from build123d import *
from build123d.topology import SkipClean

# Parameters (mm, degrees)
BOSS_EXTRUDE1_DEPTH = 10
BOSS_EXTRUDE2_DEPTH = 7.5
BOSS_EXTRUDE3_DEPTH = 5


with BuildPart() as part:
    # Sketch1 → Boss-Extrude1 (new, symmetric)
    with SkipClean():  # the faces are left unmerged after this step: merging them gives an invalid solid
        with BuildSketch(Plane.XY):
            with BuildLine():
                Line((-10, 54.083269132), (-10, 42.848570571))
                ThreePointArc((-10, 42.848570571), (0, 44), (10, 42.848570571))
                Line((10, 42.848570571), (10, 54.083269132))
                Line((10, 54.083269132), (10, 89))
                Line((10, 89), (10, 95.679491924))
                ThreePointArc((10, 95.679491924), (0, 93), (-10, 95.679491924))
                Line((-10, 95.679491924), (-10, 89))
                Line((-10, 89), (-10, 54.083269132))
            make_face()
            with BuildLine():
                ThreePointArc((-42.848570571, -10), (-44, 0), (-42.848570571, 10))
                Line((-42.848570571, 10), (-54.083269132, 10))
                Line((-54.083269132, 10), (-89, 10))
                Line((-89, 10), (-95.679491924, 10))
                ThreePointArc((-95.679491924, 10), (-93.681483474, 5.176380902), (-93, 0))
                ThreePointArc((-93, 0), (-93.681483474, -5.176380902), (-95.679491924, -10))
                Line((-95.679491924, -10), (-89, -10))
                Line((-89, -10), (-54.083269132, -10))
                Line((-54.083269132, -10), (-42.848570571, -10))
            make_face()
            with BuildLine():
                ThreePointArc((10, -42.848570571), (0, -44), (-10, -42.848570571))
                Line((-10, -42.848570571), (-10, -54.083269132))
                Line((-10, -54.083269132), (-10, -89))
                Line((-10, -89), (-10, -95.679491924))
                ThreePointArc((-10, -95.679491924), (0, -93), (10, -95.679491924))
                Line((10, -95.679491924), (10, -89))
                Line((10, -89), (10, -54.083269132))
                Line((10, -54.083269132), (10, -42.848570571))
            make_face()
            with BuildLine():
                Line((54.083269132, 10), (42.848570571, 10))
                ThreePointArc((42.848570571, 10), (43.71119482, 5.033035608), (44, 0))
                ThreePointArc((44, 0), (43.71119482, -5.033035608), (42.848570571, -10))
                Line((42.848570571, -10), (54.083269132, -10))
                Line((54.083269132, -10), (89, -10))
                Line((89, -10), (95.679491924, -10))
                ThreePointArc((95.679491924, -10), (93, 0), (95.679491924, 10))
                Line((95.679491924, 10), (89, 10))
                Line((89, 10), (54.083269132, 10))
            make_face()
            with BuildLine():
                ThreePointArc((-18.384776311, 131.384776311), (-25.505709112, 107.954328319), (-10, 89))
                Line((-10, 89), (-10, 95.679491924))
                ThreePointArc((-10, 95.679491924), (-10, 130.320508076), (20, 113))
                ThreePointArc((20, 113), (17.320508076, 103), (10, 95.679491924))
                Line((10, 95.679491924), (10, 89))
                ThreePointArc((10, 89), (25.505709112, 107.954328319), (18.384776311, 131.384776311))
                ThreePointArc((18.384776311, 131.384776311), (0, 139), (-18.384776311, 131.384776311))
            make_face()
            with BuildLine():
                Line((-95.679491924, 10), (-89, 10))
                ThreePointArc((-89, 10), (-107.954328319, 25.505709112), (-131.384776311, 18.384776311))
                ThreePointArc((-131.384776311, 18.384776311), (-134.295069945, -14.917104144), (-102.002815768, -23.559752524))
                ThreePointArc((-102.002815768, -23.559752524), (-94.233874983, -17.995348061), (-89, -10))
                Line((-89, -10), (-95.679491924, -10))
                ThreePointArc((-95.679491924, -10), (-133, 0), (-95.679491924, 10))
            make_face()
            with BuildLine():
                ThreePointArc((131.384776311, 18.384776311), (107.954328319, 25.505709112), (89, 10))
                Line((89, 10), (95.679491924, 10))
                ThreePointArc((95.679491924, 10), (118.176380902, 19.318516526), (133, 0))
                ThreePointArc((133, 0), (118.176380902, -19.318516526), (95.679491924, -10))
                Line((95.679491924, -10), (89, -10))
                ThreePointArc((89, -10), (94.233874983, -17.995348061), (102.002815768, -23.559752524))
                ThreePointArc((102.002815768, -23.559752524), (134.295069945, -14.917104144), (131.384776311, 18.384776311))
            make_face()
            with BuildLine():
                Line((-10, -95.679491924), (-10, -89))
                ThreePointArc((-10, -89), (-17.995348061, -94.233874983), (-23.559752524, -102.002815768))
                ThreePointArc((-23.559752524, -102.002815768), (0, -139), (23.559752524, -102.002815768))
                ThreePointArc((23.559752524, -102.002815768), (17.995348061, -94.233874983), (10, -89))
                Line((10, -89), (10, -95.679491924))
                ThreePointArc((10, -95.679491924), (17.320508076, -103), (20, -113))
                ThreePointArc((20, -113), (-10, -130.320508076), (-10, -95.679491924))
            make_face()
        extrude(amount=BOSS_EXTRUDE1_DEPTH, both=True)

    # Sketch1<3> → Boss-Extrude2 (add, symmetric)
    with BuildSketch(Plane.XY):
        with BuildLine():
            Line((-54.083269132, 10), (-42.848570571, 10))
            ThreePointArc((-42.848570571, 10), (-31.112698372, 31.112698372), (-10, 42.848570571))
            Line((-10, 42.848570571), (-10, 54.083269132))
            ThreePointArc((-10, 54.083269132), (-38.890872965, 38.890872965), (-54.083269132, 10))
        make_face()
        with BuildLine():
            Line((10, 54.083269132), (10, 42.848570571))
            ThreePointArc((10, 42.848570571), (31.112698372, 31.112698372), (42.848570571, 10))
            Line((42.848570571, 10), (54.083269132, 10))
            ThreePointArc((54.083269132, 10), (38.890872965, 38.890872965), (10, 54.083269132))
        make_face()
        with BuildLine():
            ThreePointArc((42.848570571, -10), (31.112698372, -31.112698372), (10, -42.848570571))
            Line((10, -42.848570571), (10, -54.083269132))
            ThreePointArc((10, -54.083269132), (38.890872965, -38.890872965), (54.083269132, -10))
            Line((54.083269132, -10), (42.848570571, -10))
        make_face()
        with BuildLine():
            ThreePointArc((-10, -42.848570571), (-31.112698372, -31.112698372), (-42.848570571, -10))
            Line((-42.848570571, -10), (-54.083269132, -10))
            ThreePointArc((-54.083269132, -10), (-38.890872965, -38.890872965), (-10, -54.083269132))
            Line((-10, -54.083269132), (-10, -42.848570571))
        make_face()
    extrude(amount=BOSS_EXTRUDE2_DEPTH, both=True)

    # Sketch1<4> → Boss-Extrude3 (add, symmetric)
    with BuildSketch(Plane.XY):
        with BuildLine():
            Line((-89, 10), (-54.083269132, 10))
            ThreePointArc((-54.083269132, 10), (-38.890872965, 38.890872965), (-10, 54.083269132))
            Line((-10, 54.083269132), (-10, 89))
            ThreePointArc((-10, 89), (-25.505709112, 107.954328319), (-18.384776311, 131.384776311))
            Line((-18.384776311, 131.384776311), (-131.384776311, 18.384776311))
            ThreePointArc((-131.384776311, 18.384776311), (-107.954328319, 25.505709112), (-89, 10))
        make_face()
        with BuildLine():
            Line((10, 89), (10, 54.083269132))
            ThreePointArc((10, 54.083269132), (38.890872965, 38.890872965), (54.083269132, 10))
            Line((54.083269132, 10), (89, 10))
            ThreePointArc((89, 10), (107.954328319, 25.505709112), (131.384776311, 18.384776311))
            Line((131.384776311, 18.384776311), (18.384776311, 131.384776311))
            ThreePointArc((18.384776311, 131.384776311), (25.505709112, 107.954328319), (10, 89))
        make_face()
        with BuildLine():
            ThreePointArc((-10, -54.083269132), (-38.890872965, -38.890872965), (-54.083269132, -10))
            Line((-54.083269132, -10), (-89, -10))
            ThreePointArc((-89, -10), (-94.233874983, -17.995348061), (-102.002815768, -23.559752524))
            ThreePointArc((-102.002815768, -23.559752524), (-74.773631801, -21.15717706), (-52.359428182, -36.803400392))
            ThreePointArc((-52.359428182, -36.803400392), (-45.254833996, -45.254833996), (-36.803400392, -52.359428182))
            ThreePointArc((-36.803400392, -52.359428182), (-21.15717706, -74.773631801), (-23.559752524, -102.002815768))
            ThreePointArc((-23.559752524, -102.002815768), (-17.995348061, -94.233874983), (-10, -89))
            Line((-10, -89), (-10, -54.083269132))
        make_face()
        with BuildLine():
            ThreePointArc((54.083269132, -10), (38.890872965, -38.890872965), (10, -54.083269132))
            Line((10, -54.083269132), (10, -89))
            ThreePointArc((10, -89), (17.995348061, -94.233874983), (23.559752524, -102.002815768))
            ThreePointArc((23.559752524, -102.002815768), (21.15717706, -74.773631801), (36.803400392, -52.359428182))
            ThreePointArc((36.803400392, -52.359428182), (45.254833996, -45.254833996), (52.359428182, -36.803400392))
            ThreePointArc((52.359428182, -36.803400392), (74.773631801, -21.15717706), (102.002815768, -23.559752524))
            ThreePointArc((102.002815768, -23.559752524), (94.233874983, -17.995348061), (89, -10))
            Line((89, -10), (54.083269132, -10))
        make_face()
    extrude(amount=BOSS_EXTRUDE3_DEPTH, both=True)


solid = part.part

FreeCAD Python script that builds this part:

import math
import FreeCAD as App
import Part
import Sketcher

doc = App.newDocument("Part")
params = doc.addObject("Spreadsheet::Sheet", "Params")
for row, (alias, value) in enumerate([
    ("sketch1_radius", "44 mm"),
    ("sketch1_radius2", "20 mm"),
    ("sketch1_radius3", "26 mm"),
    ("pad1_length", "20 mm"),
    ("sketch2_radius", "44 mm"),
    ("sketch2_radius2", "55 mm"),
    ("pad2_length", "15 mm"),
    ("sketch3_radius", "55 mm"),
    ("sketch3_radius2", "26 mm"),
    ("sketch3_radius3", "40 mm"),
    ("sketch3_radius4", "64 mm"),
    ("pad3_length", "10 mm"),
], start=1):
    params.set(f"A{row}", alias)
    params.set(f"B{row}", "=" + value)
    params.setAlias(f"B{row}", alias)

body = doc.addObject("PartDesign::Body", "Body")
body.AllowCompound = True

# Sketch on XY plane
sketch1 = body.newObject("Sketcher::SketchObject", "Sketch")
sketch1.AttachmentSupport = (doc.getObject("XY_Plane"), [""])
sketch1.MapMode = "FlatFace"
sketch1.addGeometry([
    Part.ArcOfCircle(Part.Circle(App.Vector(0, 0, 0), App.Vector(0, 0, 1), 44), math.radians(77), math.radians(103)),  # 0
    Part.LineSegment(App.Vector(10, 43, 0), App.Vector(10, 89, 0)),  # 1
    Part.LineSegment(App.Vector(10, 89, 0), App.Vector(10, 96, 0)),  # 2
    Part.ArcOfCircle(Part.Circle(App.Vector(0, 113, 0), App.Vector(0, 0, 1), 20), math.radians(-120), math.radians(-60)),  # 3
    Part.LineSegment(App.Vector(-10, 96, 0), App.Vector(-10, 89, 0)),  # 4
    Part.LineSegment(App.Vector(-10, 89, 0), App.Vector(-10, 43, 0)),  # 5
    Part.ArcOfCircle(Part.Circle(App.Vector(0, 0, 0), App.Vector(0, 0, 1), 44), math.radians(167), math.radians(193)),  # 6
    Part.LineSegment(App.Vector(-43, 10, 0), App.Vector(-54, 10, 0)),  # 7
    Part.LineSegment(App.Vector(-54, 10, 0), App.Vector(-89, 10, 0)),  # 8
    Part.LineSegment(App.Vector(-89, 10, 0), App.Vector(-96, 10, 0)),  # 9
    Part.ArcOfCircle(Part.Circle(App.Vector(-113, 0, 0), App.Vector(0, 0, 1), 20), math.radians(0), math.radians(30)),  # 10
    Part.ArcOfCircle(Part.Circle(App.Vector(-113, 0, 0), App.Vector(0, 0, 1), 20), math.radians(-30), math.radians(0)),  # 11
    Part.LineSegment(App.Vector(-96, -10, 0), App.Vector(-89, -10, 0)),  # 12
    Part.LineSegment(App.Vector(-89, -10, 0), App.Vector(-54, -10, 0)),  # 13
    Part.LineSegment(App.Vector(-54, -10, 0), App.Vector(-43, -10, 0)),  # 14
    Part.ArcOfCircle(Part.Circle(App.Vector(0, 0, 0), App.Vector(0, 0, 1), 44), math.radians(-103), math.radians(-77)),  # 15
    Part.LineSegment(App.Vector(-10, -43, 0), App.Vector(-10, -54, 0)),  # 16
    Part.LineSegment(App.Vector(-10, -54, 0), App.Vector(-10, -89, 0)),  # 17
    Part.LineSegment(App.Vector(-10, -89, 0), App.Vector(-10, -96, 0)),  # 18
    Part.ArcOfCircle(Part.Circle(App.Vector(0, -113, 0), App.Vector(0, 0, 1), 20), math.radians(60), math.radians(120)),  # 19
    Part.LineSegment(App.Vector(10, -96, 0), App.Vector(10, -89, 0)),  # 20
    Part.LineSegment(App.Vector(10, -89, 0), App.Vector(10, -54, 0)),  # 21
    Part.LineSegment(App.Vector(10, -54, 0), App.Vector(10, -43, 0)),  # 22
    Part.LineSegment(App.Vector(54, 10, 0), App.Vector(43, 10, 0)),  # 23
    Part.ArcOfCircle(Part.Circle(App.Vector(0, 0, 0), App.Vector(0, 0, 1), 44), math.radians(0), math.radians(13.14)),  # 24
    Part.ArcOfCircle(Part.Circle(App.Vector(0, 0, 0), App.Vector(0, 0, 1), 44), math.radians(-13.14), math.radians(0)),  # 25
    Part.LineSegment(App.Vector(43, -10, 0), App.Vector(54, -10, 0)),  # 26
    Part.LineSegment(App.Vector(54, -10, 0), App.Vector(89, -10, 0)),  # 27
    Part.LineSegment(App.Vector(89, -10, 0), App.Vector(96, -10, 0)),  # 28
    Part.ArcOfCircle(Part.Circle(App.Vector(113, 0, 0), App.Vector(0, 0, 1), 20), math.radians(150), math.radians(210)),  # 29
    Part.LineSegment(App.Vector(96, 10, 0), App.Vector(89, 10, 0)),  # 30
    Part.LineSegment(App.Vector(89, 10, 0), App.Vector(54, 10, 0)),  # 31
    Part.ArcOfCircle(Part.Circle(App.Vector(0, 113, 0), App.Vector(0, 0, 1), 26), math.radians(135), math.radians(247)),  # 32
    Part.LineSegment(App.Vector(-10, 89, 0), App.Vector(-10, 96, 0)),  # 33
    Part.ArcOfCircle(Part.Circle(App.Vector(0, 113, 0), App.Vector(0, 0, 1), 20), math.radians(0), math.radians(240)),  # 34
    Part.ArcOfCircle(Part.Circle(App.Vector(0, 113, 0), App.Vector(0, 0, 1), 20), math.radians(-60), math.radians(0)),  # 35
    Part.LineSegment(App.Vector(10, 96, 0), App.Vector(10, 89, 0)),  # 36
    Part.ArcOfCircle(Part.Circle(App.Vector(0, 113, 0), App.Vector(0, 0, 1), 26), math.radians(-67), math.radians(45)),  # 37
    Part.ArcOfCircle(Part.Circle(App.Vector(0, 113, 0), App.Vector(0, 0, 1), 26), math.radians(45), math.radians(135)),  # 38
    Part.LineSegment(App.Vector(-96, 10, 0), App.Vector(-89, 10, 0)),  # 39
    Part.ArcOfCircle(Part.Circle(App.Vector(-113, 0, 0), App.Vector(0, 0, 1), 26), math.radians(23), math.radians(135)),  # 40
    Part.ArcOfCircle(Part.Circle(App.Vector(-113, 0, 0), App.Vector(0, 0, 1), 26), math.radians(135), math.radians(295)),  # 41
    Part.ArcOfCircle(Part.Circle(App.Vector(-113, 0, 0), App.Vector(0, 0, 1), 26), math.radians(-65), math.radians(-23)),  # 42
    Part.LineSegment(App.Vector(-89, -10, 0), App.Vector(-96, -10, 0)),  # 43
    Part.ArcOfCircle(Part.Circle(App.Vector(-113, 0, 0), App.Vector(0, 0, 1), 20), math.radians(30), math.radians(330)),  # 44
    Part.ArcOfCircle(Part.Circle(App.Vector(113, 0, 0), App.Vector(0, 0, 1), 26), math.radians(45), math.radians(157)),  # 45
    Part.LineSegment(App.Vector(89, 10, 0), App.Vector(96, 10, 0)),  # 46
    Part.ArcOfCircle(Part.Circle(App.Vector(113, 0, 0), App.Vector(0, 0, 1), 20), math.radians(0), math.radians(150)),  # 47
    Part.ArcOfCircle(Part.Circle(App.Vector(113, 0, 0), App.Vector(0, 0, 1), 20), math.radians(-150), math.radians(0)),  # 48
    Part.LineSegment(App.Vector(96, -10, 0), App.Vector(89, -10, 0)),  # 49
    Part.ArcOfCircle(Part.Circle(App.Vector(113, 0, 0), App.Vector(0, 0, 1), 26), math.radians(-157), math.radians(-115)),  # 50
    Part.ArcOfCircle(Part.Circle(App.Vector(113, 0, 0), App.Vector(0, 0, 1), 26), math.radians(-115), math.radians(45)),  # 51
    Part.LineSegment(App.Vector(-10, -96, 0), App.Vector(-10, -89, 0)),  # 52
    Part.ArcOfCircle(Part.Circle(App.Vector(0, -113, 0), App.Vector(0, 0, 1), 26), math.radians(113), math.radians(155)),  # 53
    Part.ArcOfCircle(Part.Circle(App.Vector(0, -113, 0), App.Vector(0, 0, 1), 26), math.radians(155), math.radians(385)),  # 54
    Part.ArcOfCircle(Part.Circle(App.Vector(0, -113, 0), App.Vector(0, 0, 1), 26), math.radians(25), math.radians(67)),  # 55
    Part.LineSegment(App.Vector(10, -89, 0), App.Vector(10, -96, 0)),  # 56
    Part.ArcOfCircle(Part.Circle(App.Vector(0, -113, 0), App.Vector(0, 0, 1), 20), math.radians(0), math.radians(60)),  # 57
    Part.ArcOfCircle(Part.Circle(App.Vector(0, -113, 0), App.Vector(0, 0, 1), 20), math.radians(120), math.radians(360)),  # 58
], False)
sketch1.addConstraint([
    Sketcher.Constraint("Coincident", 0, 1, 1, 1),
    Sketcher.Constraint("Coincident", 1, 2, 2, 1),
    Sketcher.Constraint("Coincident", 2, 2, 3, 2),
    Sketcher.Constraint("Coincident", 3, 1, 4, 1),
    Sketcher.Constraint("Coincident", 4, 2, 5, 1),
    Sketcher.Constraint("Coincident", 5, 2, 0, 2),
    Sketcher.Constraint("Coincident", 6, 1, 7, 1),
    Sketcher.Constraint("Coincident", 7, 2, 8, 1),
    Sketcher.Constraint("Coincident", 8, 2, 9, 1),
    Sketcher.Constraint("Coincident", 9, 2, 10, 2),
    Sketcher.Constraint("Tangent", 10, 1, 11, 2),
    Sketcher.Constraint("Coincident", 11, 1, 12, 1),
    Sketcher.Constraint("Coincident", 12, 2, 13, 1),
    Sketcher.Constraint("Coincident", 13, 2, 14, 1),
    Sketcher.Constraint("Coincident", 14, 2, 6, 2),
    Sketcher.Constraint("Coincident", 15, 1, 16, 1),
    Sketcher.Constraint("Coincident", 16, 2, 17, 1),
    Sketcher.Constraint("Coincident", 17, 2, 18, 1),
    Sketcher.Constraint("Coincident", 18, 2, 19, 2),
    Sketcher.Constraint("Coincident", 19, 1, 20, 1),
    Sketcher.Constraint("Coincident", 20, 2, 21, 1),
    Sketcher.Constraint("Coincident", 21, 2, 22, 1),
    Sketcher.Constraint("Coincident", 22, 2, 15, 2),
    Sketcher.Constraint("Coincident", 23, 2, 24, 2),
    Sketcher.Constraint("Tangent", 24, 1, 25, 2),
    Sketcher.Constraint("Coincident", 25, 1, 26, 1),
    Sketcher.Constraint("Coincident", 26, 2, 27, 1),
    Sketcher.Constraint("Coincident", 27, 2, 28, 1),
    Sketcher.Constraint("Coincident", 28, 2, 29, 2),
    Sketcher.Constraint("Coincident", 29, 1, 30, 1),
    Sketcher.Constraint("Coincident", 30, 2, 31, 1),
    Sketcher.Constraint("Coincident", 31, 2, 23, 1),
    Sketcher.Constraint("Coincident", 32, 2, 33, 1),
    Sketcher.Constraint("Coincident", 33, 2, 34, 2),
    Sketcher.Constraint("Tangent", 34, 1, 35, 2),
    Sketcher.Constraint("Coincident", 35, 1, 36, 1),
    Sketcher.Constraint("Coincident", 36, 2, 37, 1),
    Sketcher.Constraint("Tangent", 37, 2, 38, 1),
    Sketcher.Constraint("Tangent", 38, 2, 32, 1),
    Sketcher.Constraint("Coincident", 39, 2, 40, 1),
    Sketcher.Constraint("Tangent", 40, 2, 41, 1),
    Sketcher.Constraint("Tangent", 41, 2, 42, 1),
    Sketcher.Constraint("Coincident", 42, 2, 43, 1),
    Sketcher.Constraint("Coincident", 43, 2, 44, 2),
    Sketcher.Constraint("Coincident", 44, 1, 39, 1),
    Sketcher.Constraint("Coincident", 45, 2, 46, 1),
    Sketcher.Constraint("Coincident", 46, 2, 47, 2),
    Sketcher.Constraint("Tangent", 47, 1, 48, 2),
    Sketcher.Constraint("Coincident", 48, 1, 49, 1),
    Sketcher.Constraint("Coincident", 49, 2, 50, 1),
    Sketcher.Constraint("Tangent", 50, 2, 51, 1),
    Sketcher.Constraint("Tangent", 51, 2, 45, 1),
    Sketcher.Constraint("Coincident", 52, 2, 53, 1),
    Sketcher.Constraint("Tangent", 53, 2, 54, 1),
    Sketcher.Constraint("Tangent", 54, 2, 55, 1),
    Sketcher.Constraint("Coincident", 55, 2, 56, 1),
    Sketcher.Constraint("Coincident", 56, 2, 57, 2),
    Sketcher.Constraint("Tangent", 57, 1, 58, 2),
    Sketcher.Constraint("Coincident", 58, 1, 52, 1),
    Sketcher.Constraint("Vertical", 1),
    Sketcher.Constraint("Vertical", 2),
    Sketcher.Constraint("Vertical", 4),
    Sketcher.Constraint("Vertical", 5),
    Sketcher.Constraint("Horizontal", 7),
    Sketcher.Constraint("Horizontal", 8),
    Sketcher.Constraint("Horizontal", 9),
    Sketcher.Constraint("Horizontal", 12),
    Sketcher.Constraint("Horizontal", 13),
    Sketcher.Constraint("Horizontal", 14),
    Sketcher.Constraint("Vertical", 16),
    Sketcher.Constraint("Vertical", 17),
    Sketcher.Constraint("Vertical", 18),
    Sketcher.Constraint("Vertical", 20),
    Sketcher.Constraint("Vertical", 21),
    Sketcher.Constraint("Vertical", 22),
    Sketcher.Constraint("Horizontal", 23),
    Sketcher.Constraint("Horizontal", 26),
    Sketcher.Constraint("Horizontal", 27),
    Sketcher.Constraint("Horizontal", 28),
    Sketcher.Constraint("Horizontal", 30),
    Sketcher.Constraint("Horizontal", 31),
    Sketcher.Constraint("Vertical", 33),
    Sketcher.Constraint("Vertical", 36),
    Sketcher.Constraint("Horizontal", 39),
    Sketcher.Constraint("Horizontal", 43),
    Sketcher.Constraint("Horizontal", 46),
    Sketcher.Constraint("Horizontal", 49),
    Sketcher.Constraint("Vertical", 52),
    Sketcher.Constraint("Vertical", 56),
    Sketcher.Constraint("Coincident", 0, 3, -1, 1),
    Sketcher.Constraint("Coincident", 6, 3, -1, 1),
    Sketcher.Constraint("Coincident", 15, 3, -1, 1),
    Sketcher.Constraint("Coincident", 24, 3, -1, 1),
    Sketcher.Constraint("Coincident", 32, 3, 3, 3),
    Sketcher.Constraint("Coincident", 34, 3, 3, 3),
    Sketcher.Constraint("Coincident", 37, 3, 3, 3),
    Sketcher.Constraint("Coincident", 40, 3, 10, 3),
    Sketcher.Constraint("Coincident", 42, 3, 10, 3),
    Sketcher.Constraint("Coincident", 44, 3, 10, 3),
    Sketcher.Constraint("Coincident", 45, 3, 29, 3),
    Sketcher.Constraint("Coincident", 47, 3, 29, 3),
    Sketcher.Constraint("Coincident", 50, 3, 29, 3),
    Sketcher.Constraint("Coincident", 53, 3, 19, 3),
    Sketcher.Constraint("Coincident", 55, 3, 19, 3),
    Sketcher.Constraint("Coincident", 57, 3, 19, 3),
    Sketcher.Constraint("Coincident", 32, 2, 4, 2),
    Sketcher.Constraint("Coincident", 35, 1, 2, 2),
    Sketcher.Constraint("Coincident", 39, 2, 8, 2),
    Sketcher.Constraint("Coincident", 42, 2, 12, 2),
    Sketcher.Constraint("Coincident", 45, 2, 30, 2),
    Sketcher.Constraint("Coincident", 48, 1, 28, 2),
    Sketcher.Constraint("Coincident", 52, 2, 17, 2),
    Sketcher.Constraint("Coincident", 55, 2, 20, 2),
    Sketcher.Constraint("Equal", 0, 6),
    Sketcher.Constraint("Equal", 3, 10),
    Sketcher.Constraint("Equal", 10, 11),
    Sketcher.Constraint("Equal", 6, 15),
    Sketcher.Constraint("Equal", 11, 19),
    Sketcher.Constraint("Equal", 15, 24),
    Sketcher.Constraint("Equal", 24, 25),
    Sketcher.Constraint("Equal", 19, 29),
    Sketcher.Constraint("Equal", 29, 34),
    Sketcher.Constraint("Equal", 38, 40),
    Sketcher.Constraint("Equal", 35, 44),
    Sketcher.Constraint("Equal", 42, 45),
    Sketcher.Constraint("Equal", 44, 47),
    Sketcher.Constraint("Equal", 51, 53),
    Sketcher.Constraint("Equal", 48, 57),
    Sketcher.Constraint("Equal", 57, 58),
    Sketcher.Constraint("Symmetric", 3, 3, 19, 3, -1, 1),
    Sketcher.Constraint("Symmetric", 10, 3, 29, 3, -1, 1),
    Sketcher.Constraint("Symmetric", 1, 2, 17, 2, -1, 1),
    Sketcher.Constraint("Symmetric", 7, 2, 26, 2, -1, 1),
    Sketcher.Constraint("Symmetric", 13, 2, 31, 2, -1, 1),
    Sketcher.Constraint("Symmetric", 2, 2, 3, 1, -2),
    Sketcher.Constraint("Symmetric", 16, 2, 21, 2, -2),
    Sketcher.Constraint("Symmetric", 13, 2, 26, 2, -2),
    Sketcher.Constraint("Symmetric", 41, 2, 50, 2, -2),
    Sketcher.Constraint("PointOnObject", 10, 1, -1),
    Sketcher.Constraint("PointOnObject", 24, 1, -1),
    Sketcher.Constraint("PointOnObject", 47, 1, -1),
    Sketcher.Constraint("Horizontal", 38, 3, 34, 1),
    Sketcher.Constraint("Horizontal", 37, 2, 38, 2),
    Sketcher.Constraint("Horizontal", 40, 2, 51, 2),
    Sketcher.Constraint("Horizontal", 53, 2, 54, 2),
    Sketcher.Constraint("Horizontal", 58, 3, 57, 1),
    Sketcher.Constraint("Vertical", 27, 2, 30, 2),
    Sketcher.Constraint("Equal", 49, 2),
    Sketcher.Constraint("Equal", 26, 16),
    Sketcher.Constraint("Equal", 31, 17),
    Sketcher.Constraint("Radius", 0, 44.0),
    Sketcher.Constraint("Radius", 3, 20.0),
    Sketcher.Constraint("Radius", 32, 26.0),
    Sketcher.Constraint("DistanceY", -1, 1, 3, 3, 113.0),
    Sketcher.Constraint("DistanceX", -1, 1, 0, 1, 10.0),
    Sketcher.Constraint("DistanceX", 7, 2, 7, 1, 11.234699),
    Sketcher.Constraint("DistanceX", -1, 1, 37, 2, 18.384776),
    Sketcher.Constraint("DistanceX", 40, 2, -1, 1, 131.384776),
    Sketcher.Constraint("DistanceX", 41, 2, -1, 1, 102.002816),
    Sketcher.Constraint("DistanceX", 53, 2, -1, 1, 23.559753),
])
sketch1.setExpression("Constraints[150]", "Params.sketch1_radius")
sketch1.setExpression("Constraints[151]", "Params.sketch1_radius2")
sketch1.setExpression("Constraints[152]", "Params.sketch1_radius3")
pad1 = body.newObject("PartDesign::Pad", "Pad")
pad1.Profile = sketch1
pad1.setExpression("Length", "Params.pad1_length")
pad1.Midplane = True

# Sketch on XY plane
sketch2 = body.newObject("Sketcher::SketchObject", "Sketch001")
sketch2.AttachmentSupport = (doc.getObject("XY_Plane"), [""])
sketch2.MapMode = "FlatFace"
sketch2.addGeometry([
    Part.LineSegment(App.Vector(-54, 10, 0), App.Vector(-43, 10, 0)),  # 0
    Part.ArcOfCircle(Part.Circle(App.Vector(0, 0, 0), App.Vector(0, 0, 1), 44), math.radians(103), math.radians(167)),  # 1
    Part.LineSegment(App.Vector(-10, 43, 0), App.Vector(-10, 54, 0)),  # 2
    Part.ArcOfCircle(Part.Circle(App.Vector(0, 0, 0), App.Vector(0, 0, 1), 55), math.radians(100), math.radians(170)),  # 3
    Part.LineSegment(App.Vector(10, 54, 0), App.Vector(10, 43, 0)),  # 4
    Part.ArcOfCircle(Part.Circle(App.Vector(0, 0, 0), App.Vector(0, 0, 1), 44), math.radians(13), math.radians(77)),  # 5
    Part.LineSegment(App.Vector(43, 10, 0), App.Vector(54, 10, 0)),  # 6
    Part.ArcOfCircle(Part.Circle(App.Vector(0, 0, 0), App.Vector(0, 0, 1), 55), math.radians(10), math.radians(80)),  # 7
    Part.ArcOfCircle(Part.Circle(App.Vector(0, 0, 0), App.Vector(0, 0, 1), 44), math.radians(-77), math.radians(-13)),  # 8
    Part.LineSegment(App.Vector(10, -43, 0), App.Vector(10, -54, 0)),  # 9
    Part.ArcOfCircle(Part.Circle(App.Vector(0, 0, 0), App.Vector(0, 0, 1), 55), math.radians(-80), math.radians(-10)),  # 10
    Part.LineSegment(App.Vector(54, -10, 0), App.Vector(43, -10, 0)),  # 11
    Part.ArcOfCircle(Part.Circle(App.Vector(0, 0, 0), App.Vector(0, 0, 1), 44), math.radians(-167), math.radians(-103)),  # 12
    Part.LineSegment(App.Vector(-43, -10, 0), App.Vector(-54, -10, 0)),  # 13
    Part.ArcOfCircle(Part.Circle(App.Vector(0, 0, 0), App.Vector(0, 0, 1), 55), math.radians(-170), math.radians(-100)),  # 14
    Part.LineSegment(App.Vector(-10, -54, 0), App.Vector(-10, -43, 0)),  # 15
], False)
sketch2.addConstraint([
    Sketcher.Constraint("Coincident", 0, 2, 1, 2),
    Sketcher.Constraint("Coincident", 1, 1, 2, 1),
    Sketcher.Constraint("Coincident", 2, 2, 3, 1),
    Sketcher.Constraint("Coincident", 3, 2, 0, 1),
    Sketcher.Constraint("Coincident", 4, 2, 5, 2),
    Sketcher.Constraint("Coincident", 5, 1, 6, 1),
    Sketcher.Constraint("Coincident", 6, 2, 7, 1),
    Sketcher.Constraint("Coincident", 7, 2, 4, 1),
    Sketcher.Constraint("Coincident", 8, 1, 9, 1),
    Sketcher.Constraint("Coincident", 9, 2, 10, 1),
    Sketcher.Constraint("Coincident", 10, 2, 11, 1),
    Sketcher.Constraint("Coincident", 11, 2, 8, 2),
    Sketcher.Constraint("Coincident", 12, 1, 13, 1),
    Sketcher.Constraint("Coincident", 13, 2, 14, 1),
    Sketcher.Constraint("Coincident", 14, 2, 15, 1),
    Sketcher.Constraint("Coincident", 15, 2, 12, 2),
    Sketcher.Constraint("Horizontal", 0),
    Sketcher.Constraint("Vertical", 2),
    Sketcher.Constraint("Vertical", 4),
    Sketcher.Constraint("Horizontal", 6),
    Sketcher.Constraint("Vertical", 9),
    Sketcher.Constraint("Horizontal", 11),
    Sketcher.Constraint("Horizontal", 13),
    Sketcher.Constraint("Vertical", 15),
    Sketcher.Constraint("Coincident", 1, 3, -1, 1),
    Sketcher.Constraint("Coincident", 3, 3, -1, 1),
    Sketcher.Constraint("Coincident", 5, 3, -1, 1),
    Sketcher.Constraint("Coincident", 7, 3, -1, 1),
    Sketcher.Constraint("Coincident", 8, 3, -1, 1),
    Sketcher.Constraint("Coincident", 10, 3, -1, 1),
    Sketcher.Constraint("Coincident", 12, 3, -1, 1),
    Sketcher.Constraint("Coincident", 14, 3, -1, 1),
    Sketcher.Constraint("Equal", 1, 5),
    Sketcher.Constraint("Equal", 3, 7),
    Sketcher.Constraint("Equal", 5, 8),
    Sketcher.Constraint("Equal", 7, 10),
    Sketcher.Constraint("Equal", 8, 12),
    Sketcher.Constraint("Equal", 10, 14),
    Sketcher.Constraint("Horizontal", 1, 1, 4, 2),
    Sketcher.Constraint("Horizontal", 3, 2, 5, 1),
    Sketcher.Constraint("Horizontal", 11, 2, 12, 1),
    Sketcher.Constraint("Horizontal", 9, 2, 14, 2),
    Sketcher.Constraint("Vertical", 7, 2, 8, 1),
    Sketcher.Constraint("Vertical", 6, 2, 10, 2),
    Sketcher.Constraint("Equal", 13, 2),
    Sketcher.Constraint("Radius", 1, 44.0),
    Sketcher.Constraint("Radius", 3, 55.0),
    Sketcher.Constraint("DistanceY", -1, 1, 0, 2, 10.0),
])
sketch2.setExpression("Constraints[45]", "Params.sketch2_radius")
sketch2.setExpression("Constraints[46]", "Params.sketch2_radius2")
pad2 = body.newObject("PartDesign::Pad", "Pad001")
pad2.Profile = sketch2
pad2.setExpression("Length", "Params.pad2_length")
pad2.Midplane = True

# Sketch on XY plane
sketch3 = body.newObject("Sketcher::SketchObject", "Sketch002")
sketch3.AttachmentSupport = (doc.getObject("XY_Plane"), [""])
sketch3.MapMode = "FlatFace"
sketch3.addGeometry([
    Part.LineSegment(App.Vector(-89, 10, 0), App.Vector(-54, 10, 0)),  # 0
    Part.ArcOfCircle(Part.Circle(App.Vector(0, 0, 0), App.Vector(0, 0, 1), 55), math.radians(100), math.radians(170)),  # 1
    Part.LineSegment(App.Vector(-10, 54, 0), App.Vector(-10, 89, 0)),  # 2
    Part.ArcOfCircle(Part.Circle(App.Vector(0, 113, 0), App.Vector(0, 0, 1), 26), math.radians(135), math.radians(247)),  # 3
    Part.LineSegment(App.Vector(-18, 131, 0), App.Vector(-131, 18, 0)),  # 4
    Part.ArcOfCircle(Part.Circle(App.Vector(-113, 0, 0), App.Vector(0, 0, 1), 26), math.radians(23), math.radians(135)),  # 5
    Part.LineSegment(App.Vector(10, 89, 0), App.Vector(10, 54, 0)),  # 6
    Part.ArcOfCircle(Part.Circle(App.Vector(0, 0, 0), App.Vector(0, 0, 1), 55), math.radians(10), math.radians(80)),  # 7
    Part.LineSegment(App.Vector(54, 10, 0), App.Vector(89, 10, 0)),  # 8
    Part.ArcOfCircle(Part.Circle(App.Vector(113, 0, 0), App.Vector(0, 0, 1), 26), math.radians(45), math.radians(157)),  # 9
    Part.LineSegment(App.Vector(131, 18, 0), App.Vector(18, 131, 0)),  # 10
    Part.ArcOfCircle(Part.Circle(App.Vector(0, 113, 0), App.Vector(0, 0, 1), 26), math.radians(-67), math.radians(45)),  # 11
    Part.ArcOfCircle(Part.Circle(App.Vector(0, 0, 0), App.Vector(0, 0, 1), 55), math.radians(-170), math.radians(-100)),  # 12
    Part.LineSegment(App.Vector(-54, -10, 0), App.Vector(-89, -10, 0)),  # 13
    Part.ArcOfCircle(Part.Circle(App.Vector(-113, 0, 0), App.Vector(0, 0, 1), 26), math.radians(-65), math.radians(-23)),  # 14
    Part.ArcOfCircle(Part.Circle(App.Vector(-85, -60, 0), App.Vector(0, 0, 1), 40), math.radians(35), math.radians(115)),  # 15
    Part.ArcOfCircle(Part.Circle(App.Vector(0, 0, 0), App.Vector(0, 0, 1), 64), math.radians(-144.9), math.radians(-125.1)),  # 16
    Part.ArcOfCircle(Part.Circle(App.Vector(-60, -85, 0), App.Vector(0, 0, 1), 40), math.radians(-25), math.radians(55)),  # 17
    Part.ArcOfCircle(Part.Circle(App.Vector(0, -113, 0), App.Vector(0, 0, 1), 26), math.radians(113), math.radians(155)),  # 18
    Part.LineSegment(App.Vector(-10, -89, 0), App.Vector(-10, -54, 0)),  # 19
    Part.ArcOfCircle(Part.Circle(App.Vector(0, 0, 0), App.Vector(0, 0, 1), 55), math.radians(-80), math.radians(-10)),  # 20
    Part.LineSegment(App.Vector(10, -54, 0), App.Vector(10, -89, 0)),  # 21
    Part.ArcOfCircle(Part.Circle(App.Vector(0, -113, 0), App.Vector(0, 0, 1), 26), math.radians(25), math.radians(67)),  # 22
    Part.ArcOfCircle(Part.Circle(App.Vector(60, -85, 0), App.Vector(0, 0, 1), 40), math.radians(125), math.radians(205)),  # 23
    Part.ArcOfCircle(Part.Circle(App.Vector(0, 0, 0), App.Vector(0, 0, 1), 64), math.radians(-54.9), math.radians(-35.1)),  # 24
    Part.ArcOfCircle(Part.Circle(App.Vector(85, -60, 0), App.Vector(0, 0, 1), 40), math.radians(65), math.radians(145)),  # 25
    Part.ArcOfCircle(Part.Circle(App.Vector(113, 0, 0), App.Vector(0, 0, 1), 26), math.radians(-157), math.radians(-115)),  # 26
    Part.LineSegment(App.Vector(89, -10, 0), App.Vector(54, -10, 0)),  # 27
], False)
sketch3.addConstraint([
    Sketcher.Constraint("Coincident", 0, 2, 1, 2),
    Sketcher.Constraint("Coincident", 1, 1, 2, 1),
    Sketcher.Constraint("Coincident", 2, 2, 3, 2),
    Sketcher.Constraint("Tangent", 3, 1, 4, 1),
    Sketcher.Constraint("Tangent", 4, 2, 5, 2),
    Sketcher.Constraint("Coincident", 5, 1, 0, 1),
    Sketcher.Constraint("Coincident", 6, 2, 7, 2),
    Sketcher.Constraint("Coincident", 7, 1, 8, 1),
    Sketcher.Constraint("Coincident", 8, 2, 9, 2),
    Sketcher.Constraint("Tangent", 9, 1, 10, 1),
    Sketcher.Constraint("Tangent", 10, 2, 11, 2),
    Sketcher.Constraint("Coincident", 11, 1, 6, 1),
    Sketcher.Constraint("Coincident", 12, 1, 13, 1),
    Sketcher.Constraint("Coincident", 13, 2, 14, 2),
    Sketcher.Constraint("Tangent", 14, 1, 15, 2),
    Sketcher.Constraint("Tangent", 15, 1, 16, 1),
    Sketcher.Constraint("Tangent", 16, 2, 17, 2),
    Sketcher.Constraint("Tangent", 17, 1, 18, 2),
    Sketcher.Constraint("Coincident", 18, 1, 19, 1),
    Sketcher.Constraint("Coincident", 19, 2, 12, 2),
    Sketcher.Constraint("Coincident", 20, 1, 21, 1),
    Sketcher.Constraint("Coincident", 21, 2, 22, 2),
    Sketcher.Constraint("Tangent", 22, 1, 23, 2),
    Sketcher.Constraint("Tangent", 23, 1, 24, 1),
    Sketcher.Constraint("Tangent", 24, 2, 25, 2),
    Sketcher.Constraint("Tangent", 25, 1, 26, 2),
    Sketcher.Constraint("Coincident", 26, 1, 27, 1),
    Sketcher.Constraint("Coincident", 27, 2, 20, 2),
    Sketcher.Constraint("Horizontal", 0),
    Sketcher.Constraint("Vertical", 2),
    Sketcher.Constraint("Vertical", 6),
    Sketcher.Constraint("Horizontal", 8),
    Sketcher.Constraint("Horizontal", 13),
    Sketcher.Constraint("Vertical", 19),
    Sketcher.Constraint("Vertical", 21),
    Sketcher.Constraint("Horizontal", 27),
    Sketcher.Constraint("Coincident", 1, 3, -1, 1),
    Sketcher.Constraint("Coincident", 7, 3, -1, 1),
    Sketcher.Constraint("Coincident", 12, 3, -1, 1),
    Sketcher.Constraint("Coincident", 16, 3, -1, 1),
    Sketcher.Constraint("Coincident", 20, 3, -1, 1),
    Sketcher.Constraint("Coincident", 24, 3, -1, 1),
    Sketcher.Constraint("Coincident", 11, 3, 3, 3),
    Sketcher.Constraint("Coincident", 14, 3, 5, 3),
    Sketcher.Constraint("Coincident", 22, 3, 18, 3),
    Sketcher.Constraint("Coincident", 26, 3, 9, 3),
    Sketcher.Constraint("Equal", 3, 5),
    Sketcher.Constraint("Equal", 1, 7),
    Sketcher.Constraint("Equal", 5, 9),
    Sketcher.Constraint("Equal", 9, 11),
    Sketcher.Constraint("Equal", 7, 12),
    Sketcher.Constraint("Equal", 11, 14),
    Sketcher.Constraint("Equal", 15, 17),
    Sketcher.Constraint("Equal", 14, 18),
    Sketcher.Constraint("Equal", 12, 20),
    Sketcher.Constraint("Equal", 18, 22),
    Sketcher.Constraint("Equal", 17, 23),
    Sketcher.Constraint("Equal", 16, 24),
    Sketcher.Constraint("Equal", 23, 25),
    Sketcher.Constraint("Equal", 22, 26),
    Sketcher.Constraint("Symmetric", 5, 3, 9, 3, -1, 1),
    Sketcher.Constraint("Symmetric", 3, 3, 18, 3, -1, 1),
    Sketcher.Constraint("Symmetric", 5, 1, 8, 2, -2),
    Sketcher.Constraint("Symmetric", 2, 2, 11, 1, -2),
    Sketcher.Constraint("Perpendicular", 4, 10),
    Sketcher.Constraint("Horizontal", 19, 2, 20, 1),
    Sketcher.Constraint("Horizontal", 13, 2, 26, 1),
    Sketcher.Constraint("Vertical", 0, 2, 12, 1),
    Sketcher.Constraint("Vertical", 2, 2, 18, 1),
    Sketcher.Constraint("Equal", 27, 2),
    Sketcher.Constraint("Radius", 1, 55.0),
    Sketcher.Constraint("Radius", 3, 26.0),
    Sketcher.Constraint("Radius", 15, 40.0),
    Sketcher.Constraint("Radius", 16, 64.0),
    Sketcher.Constraint("DistanceY", -1, 1, 3, 3, 113.0),
    Sketcher.Constraint("DistanceY", -1, 1, 0, 2, 10.0),
])
sketch3.setExpression("Constraints[70]", "Params.sketch3_radius")
sketch3.setExpression("Constraints[71]", "Params.sketch3_radius2")
sketch3.setExpression("Constraints[72]", "Params.sketch3_radius3")
sketch3.setExpression("Constraints[73]", "Params.sketch3_radius4")
pad3 = body.newObject("PartDesign::Pad", "Pad002")
pad3.Profile = sketch3
pad3.setExpression("Length", "Params.pad3_length")
pad3.Midplane = True

doc.recompute()
